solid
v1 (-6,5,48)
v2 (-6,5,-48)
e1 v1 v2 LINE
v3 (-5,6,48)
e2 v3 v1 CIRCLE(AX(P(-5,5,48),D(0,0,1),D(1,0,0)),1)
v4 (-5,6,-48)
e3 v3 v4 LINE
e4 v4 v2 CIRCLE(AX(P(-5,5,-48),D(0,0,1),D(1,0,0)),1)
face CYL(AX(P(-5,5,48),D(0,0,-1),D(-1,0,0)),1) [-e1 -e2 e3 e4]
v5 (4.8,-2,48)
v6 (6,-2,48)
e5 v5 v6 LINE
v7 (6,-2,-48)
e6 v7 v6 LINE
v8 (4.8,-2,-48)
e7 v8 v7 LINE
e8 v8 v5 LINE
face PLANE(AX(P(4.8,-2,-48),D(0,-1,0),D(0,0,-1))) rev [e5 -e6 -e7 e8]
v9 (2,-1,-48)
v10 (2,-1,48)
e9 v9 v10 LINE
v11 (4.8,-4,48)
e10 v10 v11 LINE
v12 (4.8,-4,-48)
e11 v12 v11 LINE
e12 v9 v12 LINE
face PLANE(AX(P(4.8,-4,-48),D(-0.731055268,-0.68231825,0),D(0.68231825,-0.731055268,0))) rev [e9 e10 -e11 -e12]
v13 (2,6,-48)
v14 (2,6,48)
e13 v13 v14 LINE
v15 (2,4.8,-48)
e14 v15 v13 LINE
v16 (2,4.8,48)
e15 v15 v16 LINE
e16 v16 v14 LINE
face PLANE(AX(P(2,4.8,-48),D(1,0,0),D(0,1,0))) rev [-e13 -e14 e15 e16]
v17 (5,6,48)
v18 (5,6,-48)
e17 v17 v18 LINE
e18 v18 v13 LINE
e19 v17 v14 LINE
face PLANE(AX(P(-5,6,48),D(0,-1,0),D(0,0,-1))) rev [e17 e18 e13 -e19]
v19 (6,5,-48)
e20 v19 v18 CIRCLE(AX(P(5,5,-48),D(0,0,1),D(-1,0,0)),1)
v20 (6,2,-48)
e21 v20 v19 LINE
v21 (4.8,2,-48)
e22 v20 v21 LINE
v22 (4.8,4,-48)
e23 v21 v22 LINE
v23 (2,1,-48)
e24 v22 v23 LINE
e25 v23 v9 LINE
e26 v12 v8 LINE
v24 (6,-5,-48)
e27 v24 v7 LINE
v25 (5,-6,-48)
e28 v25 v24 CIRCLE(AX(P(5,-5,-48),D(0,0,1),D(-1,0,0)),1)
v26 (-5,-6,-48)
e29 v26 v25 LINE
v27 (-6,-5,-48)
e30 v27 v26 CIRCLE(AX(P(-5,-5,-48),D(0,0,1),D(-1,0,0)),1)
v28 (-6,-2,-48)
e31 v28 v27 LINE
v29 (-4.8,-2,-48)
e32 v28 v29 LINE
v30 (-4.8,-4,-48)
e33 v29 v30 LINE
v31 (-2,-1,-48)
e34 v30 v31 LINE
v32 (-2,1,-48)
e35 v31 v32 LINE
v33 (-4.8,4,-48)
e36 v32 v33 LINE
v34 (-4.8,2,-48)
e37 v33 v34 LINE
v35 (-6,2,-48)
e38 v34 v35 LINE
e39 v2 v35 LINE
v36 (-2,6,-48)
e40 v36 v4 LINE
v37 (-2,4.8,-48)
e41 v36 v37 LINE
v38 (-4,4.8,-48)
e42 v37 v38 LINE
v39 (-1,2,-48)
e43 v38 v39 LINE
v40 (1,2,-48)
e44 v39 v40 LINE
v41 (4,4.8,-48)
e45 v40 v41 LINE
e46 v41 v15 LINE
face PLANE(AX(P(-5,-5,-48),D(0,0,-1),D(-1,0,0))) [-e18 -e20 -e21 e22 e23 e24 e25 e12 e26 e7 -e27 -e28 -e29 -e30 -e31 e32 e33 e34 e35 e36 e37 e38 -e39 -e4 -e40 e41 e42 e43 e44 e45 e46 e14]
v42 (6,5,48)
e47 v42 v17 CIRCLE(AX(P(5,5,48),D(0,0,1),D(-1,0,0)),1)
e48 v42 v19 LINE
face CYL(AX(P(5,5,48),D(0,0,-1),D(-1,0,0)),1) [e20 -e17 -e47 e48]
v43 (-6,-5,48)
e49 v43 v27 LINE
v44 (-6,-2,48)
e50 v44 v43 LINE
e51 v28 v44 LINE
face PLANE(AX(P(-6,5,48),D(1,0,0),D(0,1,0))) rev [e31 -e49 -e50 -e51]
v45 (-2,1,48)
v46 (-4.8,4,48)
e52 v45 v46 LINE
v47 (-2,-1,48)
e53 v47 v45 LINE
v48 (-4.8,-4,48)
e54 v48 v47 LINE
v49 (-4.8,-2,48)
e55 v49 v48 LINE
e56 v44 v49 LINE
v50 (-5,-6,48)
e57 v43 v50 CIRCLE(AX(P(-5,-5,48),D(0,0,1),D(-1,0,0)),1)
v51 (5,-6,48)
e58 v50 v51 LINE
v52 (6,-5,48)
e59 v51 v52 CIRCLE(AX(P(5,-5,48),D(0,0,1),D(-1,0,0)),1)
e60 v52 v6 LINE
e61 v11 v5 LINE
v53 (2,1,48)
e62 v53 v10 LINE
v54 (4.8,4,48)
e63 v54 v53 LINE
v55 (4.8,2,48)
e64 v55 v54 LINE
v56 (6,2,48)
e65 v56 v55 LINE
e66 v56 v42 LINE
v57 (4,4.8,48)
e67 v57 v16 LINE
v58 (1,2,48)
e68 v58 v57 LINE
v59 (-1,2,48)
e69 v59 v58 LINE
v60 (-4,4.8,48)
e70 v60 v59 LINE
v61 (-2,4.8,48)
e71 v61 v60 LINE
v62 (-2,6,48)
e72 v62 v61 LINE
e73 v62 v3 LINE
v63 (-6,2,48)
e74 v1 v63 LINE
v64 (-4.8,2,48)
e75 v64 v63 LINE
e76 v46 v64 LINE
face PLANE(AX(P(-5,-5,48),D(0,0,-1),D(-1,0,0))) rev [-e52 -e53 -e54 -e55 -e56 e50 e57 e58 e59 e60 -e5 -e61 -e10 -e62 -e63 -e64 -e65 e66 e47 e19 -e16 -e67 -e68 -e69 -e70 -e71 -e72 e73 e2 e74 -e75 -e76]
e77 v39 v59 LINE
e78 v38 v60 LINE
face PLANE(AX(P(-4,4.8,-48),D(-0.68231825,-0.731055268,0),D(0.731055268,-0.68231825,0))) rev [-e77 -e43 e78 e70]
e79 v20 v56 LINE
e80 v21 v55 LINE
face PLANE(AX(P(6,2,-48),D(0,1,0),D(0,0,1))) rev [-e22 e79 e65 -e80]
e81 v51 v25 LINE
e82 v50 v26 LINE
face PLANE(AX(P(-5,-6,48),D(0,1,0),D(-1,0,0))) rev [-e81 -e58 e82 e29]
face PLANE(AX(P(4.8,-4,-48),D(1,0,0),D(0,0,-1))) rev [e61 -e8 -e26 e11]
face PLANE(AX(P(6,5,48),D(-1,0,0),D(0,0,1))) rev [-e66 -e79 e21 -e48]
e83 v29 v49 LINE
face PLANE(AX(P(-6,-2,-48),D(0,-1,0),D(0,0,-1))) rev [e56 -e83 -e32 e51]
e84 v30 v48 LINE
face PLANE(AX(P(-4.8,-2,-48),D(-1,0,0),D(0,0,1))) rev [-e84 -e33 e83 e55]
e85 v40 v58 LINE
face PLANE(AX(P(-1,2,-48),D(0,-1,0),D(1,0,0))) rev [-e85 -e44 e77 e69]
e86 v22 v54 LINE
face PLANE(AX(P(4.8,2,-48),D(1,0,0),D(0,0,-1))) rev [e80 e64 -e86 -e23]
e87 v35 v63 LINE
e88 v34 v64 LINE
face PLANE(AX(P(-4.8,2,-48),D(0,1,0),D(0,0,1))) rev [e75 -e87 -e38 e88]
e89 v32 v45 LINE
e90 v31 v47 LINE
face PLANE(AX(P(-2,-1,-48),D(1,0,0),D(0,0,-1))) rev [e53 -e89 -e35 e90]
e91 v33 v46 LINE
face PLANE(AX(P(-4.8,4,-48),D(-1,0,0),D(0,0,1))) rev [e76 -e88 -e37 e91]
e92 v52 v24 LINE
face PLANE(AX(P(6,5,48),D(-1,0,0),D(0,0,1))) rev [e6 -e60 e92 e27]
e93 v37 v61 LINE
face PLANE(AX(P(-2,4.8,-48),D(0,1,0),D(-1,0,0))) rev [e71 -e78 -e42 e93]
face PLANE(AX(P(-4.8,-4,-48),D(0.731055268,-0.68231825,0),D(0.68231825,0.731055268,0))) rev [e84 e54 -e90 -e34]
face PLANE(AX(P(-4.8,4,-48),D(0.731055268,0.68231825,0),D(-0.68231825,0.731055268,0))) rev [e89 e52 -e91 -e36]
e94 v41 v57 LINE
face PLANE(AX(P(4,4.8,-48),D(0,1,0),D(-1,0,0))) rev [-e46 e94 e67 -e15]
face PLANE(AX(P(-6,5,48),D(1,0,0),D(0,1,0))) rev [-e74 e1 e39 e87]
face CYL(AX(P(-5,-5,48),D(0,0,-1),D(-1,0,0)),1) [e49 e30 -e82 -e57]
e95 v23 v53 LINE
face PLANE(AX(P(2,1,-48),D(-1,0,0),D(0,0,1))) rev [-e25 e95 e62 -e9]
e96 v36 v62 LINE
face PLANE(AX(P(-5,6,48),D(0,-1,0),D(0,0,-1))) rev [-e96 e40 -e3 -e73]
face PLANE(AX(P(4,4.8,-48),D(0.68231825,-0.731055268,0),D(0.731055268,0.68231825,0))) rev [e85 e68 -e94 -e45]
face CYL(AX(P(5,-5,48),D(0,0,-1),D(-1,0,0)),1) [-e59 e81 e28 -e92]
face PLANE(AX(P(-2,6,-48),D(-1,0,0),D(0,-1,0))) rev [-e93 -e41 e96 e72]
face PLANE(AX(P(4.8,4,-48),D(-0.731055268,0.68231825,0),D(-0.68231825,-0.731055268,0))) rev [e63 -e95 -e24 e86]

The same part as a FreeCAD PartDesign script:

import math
import FreeCAD as App
import Part
import Sketcher
Q = App.Units.Quantity


def add_polygon(sketch, points):
    """Adds a closed chain of lines whose ends are joined by coincident constraints."""
    first, n = sketch.GeometryCount, len(points)
    for a, b in zip(points, points[1:] + points[:1]):
        sketch.addGeometry(Part.LineSegment(App.Vector(*a, 0), App.Vector(*b, 0)), False)
    for i in range(n):
        sketch.addConstraint(Sketcher.Constraint("Coincident", first + i, 2, first + (i + 1) % n, 1))

doc = App.newDocument("Part")
body = doc.addObject("PartDesign::Body", "Body")

sketch1 = body.newObject("Sketcher::SketchObject", "Sketch")
sketch1.AttachmentSupport = (doc.getObject("XY_Plane"), [""])
sketch1.MapMode = "FlatFace"
sketch1.addGeometry([
    Part.LineSegment(App.Vector(-6, 5, 0), App.Vector(-6, -5, 0)),
    Part.ArcOfCircle(Part.Circle(App.Vector(-5, -5, 0), App.Vector(0, 0, 1), 1), math.radians(-180), math.radians(-90)),
    Part.LineSegment(App.Vector(-5, -6, 0), App.Vector(5, -6, 0)),
    Part.ArcOfCircle(Part.Circle(App.Vector(5, -5, 0), App.Vector(0, 0, 1), 1), math.radians(-90), math.radians(0)),
    Part.LineSegment(App.Vector(6, -5, 0), App.Vector(6, 5, 0)),
    Part.ArcOfCircle(Part.Circle(App.Vector(5, 5, 0), App.Vector(0, 0, 1), 1), math.radians(0), math.radians(90)),
    Part.LineSegment(App.Vector(5, 6, 0), App.Vector(-5, 6, 0)),
    Part.ArcOfCircle(Part.Circle(App.Vector(-5, 5, 0), App.Vector(0, 0, 1), 1), math.radians(90), math.radians(180)),
], False)
sketch1.addConstraint([
    Sketcher.Constraint("Tangent", 0, 2, 1, 1),
    Sketcher.Constraint("Tangent", 1, 2, 2, 1),
    Sketcher.Constraint("Tangent", 2, 2, 3, 1),
    Sketcher.Constraint("Tangent", 3, 2, 4, 1),
    Sketcher.Constraint("Tangent", 4, 2, 5, 1),
    Sketcher.Constraint("Tangent", 5, 2, 6, 1),
    Sketcher.Constraint("Tangent", 6, 2, 7, 1),
    Sketcher.Constraint("Tangent", 7, 2, 0, 1),
    Sketcher.Constraint("Vertical", 0),
    Sketcher.Constraint("Horizontal", 2),
    Sketcher.Constraint("Vertical", 4),
    Sketcher.Constraint("Horizontal", 6),
    Sketcher.Constraint("Equal", 1, 3),
    Sketcher.Constraint("Equal", 3, 5),
    Sketcher.Constraint("Equal", 5, 7),
    Sketcher.Constraint("Symmetric", 1, 3, 5, 3, -1, 1),
    Sketcher.Constraint("Equal", 6, 0),
    Sketcher.Constraint("Radius", 1, Q("1 mm")),
    Sketcher.Constraint("DistanceX", 2, 1, 2, 2, Q("10 mm")),
])
pad1 = body.newObject("PartDesign::Pad", "Pad")
pad1.Profile = sketch1
pad1.Length = 96
pad1.Midplane = True

sketch2 = body.newObject("Sketcher::SketchObject", "Sketch001")
sketch2.AttachmentSupport = (doc.getObject("XY_Plane"), [""])
sketch2.MapMode = "FlatFace"
sketch2.AttachmentOffset = App.Placement(App.Vector(0, 0, 48), App.Rotation())
add_polygon(sketch2, [(6, 2), (4.8, 2), (4.8, 4), (2, 1), (2, -1), (4.8, -4), (4.8, -2), (6, -2)])
sketch2.addConstraint([
    Sketcher.Constraint("Horizontal", 0),
    Sketcher.Constraint("Vertical", 1),
    Sketcher.Constraint("Vertical", 3),
    Sketcher.Constraint("Vertical", 5),
    Sketcher.Constraint("Horizontal", 6),
    Sketcher.Constraint("Vertical", 7),
    Sketcher.Constraint("Symmetric", 1, 2, 4, 2, -1),
    Sketcher.Constraint("Equal", 1, 3),
    Sketcher.Constraint("Equal", 3, 5),
    Sketcher.Constraint("Equal", 2, 4),
    Sketcher.Constraint("DistanceY", 1, 1, 1, 2, Q("2 mm")),
    Sketcher.Constraint("DistanceY", 7, 1, 7, 2, Q("4 mm")),
    Sketcher.Constraint("DistanceX", 0, 2, 0, 1, Q("1.2 mm")),
    Sketcher.Constraint("DistanceX", -1, 1, 2, 2, Q("2 mm")),
    Sketcher.Constraint("DistanceX", -1, 1, 6, 2, Q("6 mm")),
])
pocket1 = body.newObject("PartDesign::Pocket", "Pocket")
pocket1.Profile = sketch2
pocket1.Type = "ThroughAll"
doc.recompute()

polarpattern = body.newObject("PartDesign::PolarPattern", "PolarPattern")
polarpattern.Originals = [pocket1]
polarpattern.Axis = (doc.getObject("Z_Axis"), [""])
polarpattern.Angle = 180
polarpattern.Occurrences = 3
body.Tip = polarpattern

doc.recompute()
